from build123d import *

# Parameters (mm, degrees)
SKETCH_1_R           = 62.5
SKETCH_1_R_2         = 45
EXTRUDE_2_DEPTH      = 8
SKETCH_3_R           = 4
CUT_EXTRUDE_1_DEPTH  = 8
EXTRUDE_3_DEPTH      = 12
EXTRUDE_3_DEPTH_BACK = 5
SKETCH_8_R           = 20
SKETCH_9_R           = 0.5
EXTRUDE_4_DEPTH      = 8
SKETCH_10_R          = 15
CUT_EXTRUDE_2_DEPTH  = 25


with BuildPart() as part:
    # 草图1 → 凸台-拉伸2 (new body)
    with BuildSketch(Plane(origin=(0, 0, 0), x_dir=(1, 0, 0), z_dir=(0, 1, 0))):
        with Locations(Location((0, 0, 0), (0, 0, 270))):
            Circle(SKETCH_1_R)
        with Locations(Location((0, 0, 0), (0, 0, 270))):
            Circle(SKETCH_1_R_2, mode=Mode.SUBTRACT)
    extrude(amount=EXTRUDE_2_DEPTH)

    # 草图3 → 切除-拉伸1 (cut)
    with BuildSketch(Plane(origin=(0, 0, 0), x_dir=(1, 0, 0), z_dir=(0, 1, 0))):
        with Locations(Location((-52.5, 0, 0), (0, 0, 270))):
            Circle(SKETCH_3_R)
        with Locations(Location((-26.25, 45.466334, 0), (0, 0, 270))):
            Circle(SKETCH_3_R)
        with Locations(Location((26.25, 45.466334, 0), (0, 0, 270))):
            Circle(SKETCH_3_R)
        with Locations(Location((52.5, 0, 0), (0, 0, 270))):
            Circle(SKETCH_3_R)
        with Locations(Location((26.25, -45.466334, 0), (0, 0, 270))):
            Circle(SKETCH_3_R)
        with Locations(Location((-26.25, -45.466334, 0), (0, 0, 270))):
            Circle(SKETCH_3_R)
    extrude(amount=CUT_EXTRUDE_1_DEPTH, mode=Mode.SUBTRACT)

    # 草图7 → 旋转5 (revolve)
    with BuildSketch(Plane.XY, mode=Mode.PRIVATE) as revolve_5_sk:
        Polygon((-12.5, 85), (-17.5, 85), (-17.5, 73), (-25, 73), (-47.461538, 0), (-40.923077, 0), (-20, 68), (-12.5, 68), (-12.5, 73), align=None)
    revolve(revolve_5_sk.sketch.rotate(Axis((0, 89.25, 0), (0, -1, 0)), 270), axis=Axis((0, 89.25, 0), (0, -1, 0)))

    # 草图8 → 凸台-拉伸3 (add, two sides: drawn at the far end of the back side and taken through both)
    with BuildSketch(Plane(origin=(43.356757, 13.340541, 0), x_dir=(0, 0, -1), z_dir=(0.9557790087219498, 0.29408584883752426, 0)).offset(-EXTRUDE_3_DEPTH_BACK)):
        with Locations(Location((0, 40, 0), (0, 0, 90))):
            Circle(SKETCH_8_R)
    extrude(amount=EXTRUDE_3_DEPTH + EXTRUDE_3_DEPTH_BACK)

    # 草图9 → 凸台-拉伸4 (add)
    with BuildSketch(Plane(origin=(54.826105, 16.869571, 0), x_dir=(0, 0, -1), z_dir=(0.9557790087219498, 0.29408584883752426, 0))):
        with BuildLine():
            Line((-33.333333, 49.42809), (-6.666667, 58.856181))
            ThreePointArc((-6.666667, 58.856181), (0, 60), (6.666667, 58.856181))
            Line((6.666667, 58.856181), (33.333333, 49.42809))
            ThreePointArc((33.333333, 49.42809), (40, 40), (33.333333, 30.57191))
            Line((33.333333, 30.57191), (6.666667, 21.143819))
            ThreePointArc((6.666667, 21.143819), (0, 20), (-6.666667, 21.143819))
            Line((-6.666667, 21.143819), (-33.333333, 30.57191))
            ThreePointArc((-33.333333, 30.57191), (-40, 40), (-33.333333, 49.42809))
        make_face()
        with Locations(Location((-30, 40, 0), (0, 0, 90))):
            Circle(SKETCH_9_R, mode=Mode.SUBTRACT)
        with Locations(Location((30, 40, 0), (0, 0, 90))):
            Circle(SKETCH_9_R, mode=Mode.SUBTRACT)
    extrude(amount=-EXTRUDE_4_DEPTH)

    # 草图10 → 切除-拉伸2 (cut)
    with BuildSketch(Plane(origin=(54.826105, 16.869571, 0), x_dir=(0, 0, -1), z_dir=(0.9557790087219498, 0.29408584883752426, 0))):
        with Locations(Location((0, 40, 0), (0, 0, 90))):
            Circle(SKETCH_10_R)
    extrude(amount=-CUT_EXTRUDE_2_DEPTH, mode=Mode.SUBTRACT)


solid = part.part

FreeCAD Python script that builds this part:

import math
import FreeCAD as App
import Part
import Sketcher

doc = App.newDocument("Part")
body = doc.addObject("PartDesign::Body", "Body")

# Sketch on XZ plane
sketch1 = doc.addObject("Sketcher::SketchObject", "Sketch")
body.addObject(sketch1)
sketch1.AttachmentSupport = (doc.XZ_Plane, [""])
sketch1.MapMode = "FlatFace"
sketch1.addGeometry([
    Part.Circle(App.Vector(0, 0, 0), App.Vector(0, 0, 1), 62),
    Part.Circle(App.Vector(0, 0, 0), App.Vector(0, 0, 1), 45),
], False)
sketch1.addConstraint([
    Sketcher.Constraint("Coincident", 0, 3, -1, 1),
    Sketcher.Constraint("Coincident", 1, 3, -1, 1),
    Sketcher.Constraint("Diameter", 0, 125.0),
    Sketcher.Constraint("Diameter", 1, 90.0),
])
pad1 = doc.addObject("PartDesign::Pad", "Pad")
body.addObject(pad1)
pad1.Profile = sketch1
pad1.Length = 8
pad1.Reversed = True

# Sketch on XZ plane
sketch2 = doc.addObject("Sketcher::SketchObject", "Sketch001")
body.addObject(sketch2)
sketch2.AttachmentSupport = (doc.XZ_Plane, [""])
sketch2.MapMode = "FlatFace"
sketch2.addGeometry([
    Part.Circle(App.Vector(-52.5, 0, 0), App.Vector(0, 0, 1), 4),  # 0
    Part.Circle(App.Vector(-26.2, -45.5, 0), App.Vector(0, 0, 1), 4),  # 1
    Part.Circle(App.Vector(26.2, -45.5, 0), App.Vector(0, 0, 1), 4),  # 2
    Part.Circle(App.Vector(52.5, 0, 0), App.Vector(0, 0, 1), 4),  # 3
    Part.Circle(App.Vector(26.2, 45.5, 0), App.Vector(0, 0, 1), 4),  # 4
    Part.Circle(App.Vector(-26.2, 45.5, 0), App.Vector(0, 0, 1), 4),  # 5
], False)
sketch2.addConstraint([
    Sketcher.Constraint("Equal", 0, 1),
    Sketcher.Constraint("Equal", 1, 2),
    Sketcher.Constraint("Equal", 2, 3),
    Sketcher.Constraint("Equal", 3, 4),
    Sketcher.Constraint("Equal", 4, 5),
    Sketcher.Constraint("Symmetric", 0, 3, 3, 3, -1, 1),
    Sketcher.Constraint("Symmetric", 1, 3, 4, 3, -1, 1),
    Sketcher.Constraint("Symmetric", 2, 3, 5, 3, -1, 1),
    Sketcher.Constraint("Symmetric", 1, 3, 2, 3, -2),
    Sketcher.Constraint("PointOnObject", 0, 3, -1),
    Sketcher.Constraint("Diameter", 0, 8.0),
    Sketcher.Constraint("DistanceX", 0, 3, 3, 3, 105.0),
    Sketcher.Constraint("DistanceX", 1, 3, 2, 3, 52.5),
    Sketcher.Constraint("DistanceY", 2, 3, 4, 3, 90.932668),
])
pocket1 = doc.addObject("PartDesign::Pocket", "Pocket")
body.addObject(pocket1)
pocket1.Profile = sketch2
pocket1.Length = 8

# Sketch on XY plane
sketch3 = doc.addObject("Sketcher::SketchObject", "Sketch002")
body.addObject(sketch3)
sketch3.AttachmentSupport = (doc.XY_Plane, [""])
sketch3.MapMode = "FlatFace"
sketch3.addGeometry([
    Part.LineSegment(App.Vector(-12, 85, 0), App.Vector(-18, 85, 0)),  # 0
    Part.LineSegment(App.Vector(-18, 85, 0), App.Vector(-18, 73, 0)),  # 1
    Part.LineSegment(App.Vector(-18, 73, 0), App.Vector(-25, 73, 0)),  # 2
    Part.LineSegment(App.Vector(-25, 73, 0), App.Vector(-47, 0, 0)),  # 3
    Part.LineSegment(App.Vector(-47, 0, 0), App.Vector(-41, 0, 0)),  # 4
    Part.LineSegment(App.Vector(-41, 0, 0), App.Vector(-20, 68, 0)),  # 5
    Part.LineSegment(App.Vector(-20, 68, 0), App.Vector(-12, 68, 0)),  # 6
    Part.LineSegment(App.Vector(-12, 68, 0), App.Vector(-12, 85, 0)),  # 7
], False)
sketch3.addConstraint([
    Sketcher.Constraint("Coincident", 0, 2, 1, 1),
    Sketcher.Constraint("Coincident", 1, 2, 2, 1),
    Sketcher.Constraint("Coincident", 2, 2, 3, 1),
    Sketcher.Constraint("Coincident", 3, 2, 4, 1),
    Sketcher.Constraint("Coincident", 4, 2, 5, 1),
    Sketcher.Constraint("Coincident", 5, 2, 6, 1),
    Sketcher.Constraint("Coincident", 6, 2, 7, 1),
    Sketcher.Constraint("Coincident", 7, 2, 0, 1),
    Sketcher.Constraint("Horizontal", 0),
    Sketcher.Constraint("Vertical", 1),
    Sketcher.Constraint("Horizontal", 2),
    Sketcher.Constraint("Horizontal", 4),
    Sketcher.Constraint("Horizontal", 6),
    Sketcher.Constraint("Vertical", 7),
    Sketcher.Constraint("PointOnObject", 3, 2, -1),
    Sketcher.Constraint("Parallel", 3, 5),
    Sketcher.Constraint("Equal", 2, 6),
    Sketcher.Constraint("DistanceX", 0, 2, 0, 1, 5.0),
    Sketcher.Constraint("DistanceY", 1, 2, 1, 1, 12.0),
    Sketcher.Constraint("DistanceY", 7, 1, 7, 2, 17.0),
    Sketcher.Constraint("DistanceX", 2, 2, 2, 1, 7.5),
    Sketcher.Constraint("DistanceY", -1, 1, 0, 2, 85.0),
    Sketcher.Constraint("DistanceX", 2, 2, -1, 1, 25.0),
    Sketcher.Constraint("DistanceX", 4, 1, 4, 2, 6.538461),
])
revolution = doc.addObject("PartDesign::Revolution", "Revolution")
body.addObject(revolution)
revolution.Profile = sketch3
revolution.ReferenceAxis = (sketch3, ["V_Axis"])
revolution.Angle = 360

# Sketch on an angled plane
sketch4 = doc.addObject("Sketcher::SketchObject", "Sketch003")
body.addObject(sketch4)
sketch4.Placement = App.Placement(App.Vector(43.356757, 13.340541, 0), App.Rotation(App.Vector(0, 0, -1), App.Vector(-0.294085849, 0.955779009, 0), App.Vector(0.955779009, 0.294085849, 0), "ZXY"))
sketch4.addGeometry(Part.Circle(App.Vector(0, 40, 0), App.Vector(0, 0, 1), 20), False)
sketch4.addConstraint([
    Sketcher.Constraint("PointOnObject", 0, 3, -2),
    Sketcher.Constraint("Diameter", 0, 40.0),
    Sketcher.Constraint("DistanceY", -1, 1, 0, 3, 40.0),
])
pad2 = doc.addObject("PartDesign::Pad", "Pad001")
body.addObject(pad2)
pad2.Profile = sketch4
pad2.Type = "TwoLengths"
pad2.Length = 12
pad2.Length2 = 5

# Sketch on an angled plane
sketch5 = doc.addObject("Sketcher::SketchObject", "Sketch004")
body.addObject(sketch5)
sketch5.Placement = App.Placement(App.Vector(54.826105, 16.869571, 0), App.Rotation(App.Vector(0, 0, -1), App.Vector(-0.294085849, 0.955779009, 0), App.Vector(0.955779009, 0.294085849, 0), "ZXY"))
sketch5.addGeometry([
    Part.LineSegment(App.Vector(-6.7, 58.9, 0), App.Vector(-33.3, 49.4, 0)),  # 0
    Part.ArcOfCircle(Part.Circle(App.Vector(-30, 40, 0), App.Vector(0, 0, 1), 10), math.radians(109), math.radians(251)),  # 1
    Part.LineSegment(App.Vector(-33.3, 30.6, 0), App.Vector(-6.7, 21.1, 0)),  # 2
    Part.ArcOfCircle(Part.Circle(App.Vector(0, 40, 0), App.Vector(0, 0, 1), 20), math.radians(-109), math.radians(-71)),  # 3
    Part.LineSegment(App.Vector(6.7, 21.1, 0), App.Vector(33.3, 30.6, 0)),  # 4
    Part.ArcOfCircle(Part.Circle(App.Vector(30, 40, 0), App.Vector(0, 0, 1), 10), math.radians(-71), math.radians(71)),  # 5
    Part.LineSegment(App.Vector(33.3, 49.4, 0), App.Vector(6.7, 58.9, 0)),  # 6
    Part.ArcOfCircle(Part.Circle(App.Vector(0, 40, 0), App.Vector(0, 0, 1), 20), math.radians(71), math.radians(109)),  # 7
    Part.Circle(App.Vector(30, 40, 0), App.Vector(0, 0, 1), 0.5),  # 8
    Part.Circle(App.Vector(-30, 40, 0), App.Vector(0, 0, 1), 0.5),  # 9
], False)
sketch5.addConstraint([
    Sketcher.Constraint("Tangent", 0, 2, 1, 1),
    Sketcher.Constraint("Tangent", 1, 2, 2, 1),
    Sketcher.Constraint("Tangent", 2, 2, 3, 1),
    Sketcher.Constraint("Tangent", 3, 2, 4, 1),
    Sketcher.Constraint("Tangent", 4, 2, 5, 1),
    Sketcher.Constraint("Tangent", 5, 2, 6, 1),
    Sketcher.Constraint("Tangent", 6, 2, 7, 1),
    Sketcher.Constraint("Tangent", 7, 2, 0, 1),
    Sketcher.Constraint("Coincident", 7, 3, 3, 3),
    Sketcher.Constraint("Coincident", 8, 3, 5, 3),
    Sketcher.Constraint("Coincident", 9, 3, 1, 3),
    Sketcher.Constraint("Equal", 1, 5),
    Sketcher.Constraint("Equal", 3, 7),
    Sketcher.Constraint("Equal", 8, 9),
    Sketcher.Constraint("Symmetric", 1, 3, 5, 3, -2),
    Sketcher.Constraint("PointOnObject", 3, 3, -2),
    Sketcher.Constraint("Parallel", 0, 4),
    Sketcher.Constraint("Diameter", 8, 1.0),
    Sketcher.Constraint("Radius", 1, 9.999999),
    Sketcher.Constraint("DistanceX", 1, 3, -1, 1, 30.000001),
    Sketcher.Constraint("DistanceY", -1, 1, 1, 3, 40.0),
    Sketcher.Constraint("Radius", 3, 20.000005),
])
pad3 = doc.addObject("PartDesign::Pad", "Pad002")
body.addObject(pad3)
pad3.Profile = sketch5
pad3.Length = 8
pad3.Reversed = True

# Sketch on an angled plane
sketch6 = doc.addObject("Sketcher::SketchObject", "Sketch005")
body.addObject(sketch6)
sketch6.Placement = App.Placement(App.Vector(54.826105, 16.869571, 0), App.Rotation(App.Vector(0, 0, -1), App.Vector(-0.294085849, 0.955779009, 0), App.Vector(0.955779009, 0.294085849, 0), "ZXY"))
sketch6.addGeometry(Part.Circle(App.Vector(0, 40, 0), App.Vector(0, 0, 1), 15), False)
sketch6.addConstraint([
    Sketcher.Constraint("PointOnObject", 0, 3, -2),
    Sketcher.Constraint("Diameter", 0, 30.0),
    Sketcher.Constraint("DistanceY", -1, 1, 0, 3, 40.0),
])
pocket2 = doc.addObject("PartDesign::Pocket", "Pocket001")
body.addObject(pocket2)
pocket2.Profile = sketch6
pocket2.Length = 25

doc.recompute()
